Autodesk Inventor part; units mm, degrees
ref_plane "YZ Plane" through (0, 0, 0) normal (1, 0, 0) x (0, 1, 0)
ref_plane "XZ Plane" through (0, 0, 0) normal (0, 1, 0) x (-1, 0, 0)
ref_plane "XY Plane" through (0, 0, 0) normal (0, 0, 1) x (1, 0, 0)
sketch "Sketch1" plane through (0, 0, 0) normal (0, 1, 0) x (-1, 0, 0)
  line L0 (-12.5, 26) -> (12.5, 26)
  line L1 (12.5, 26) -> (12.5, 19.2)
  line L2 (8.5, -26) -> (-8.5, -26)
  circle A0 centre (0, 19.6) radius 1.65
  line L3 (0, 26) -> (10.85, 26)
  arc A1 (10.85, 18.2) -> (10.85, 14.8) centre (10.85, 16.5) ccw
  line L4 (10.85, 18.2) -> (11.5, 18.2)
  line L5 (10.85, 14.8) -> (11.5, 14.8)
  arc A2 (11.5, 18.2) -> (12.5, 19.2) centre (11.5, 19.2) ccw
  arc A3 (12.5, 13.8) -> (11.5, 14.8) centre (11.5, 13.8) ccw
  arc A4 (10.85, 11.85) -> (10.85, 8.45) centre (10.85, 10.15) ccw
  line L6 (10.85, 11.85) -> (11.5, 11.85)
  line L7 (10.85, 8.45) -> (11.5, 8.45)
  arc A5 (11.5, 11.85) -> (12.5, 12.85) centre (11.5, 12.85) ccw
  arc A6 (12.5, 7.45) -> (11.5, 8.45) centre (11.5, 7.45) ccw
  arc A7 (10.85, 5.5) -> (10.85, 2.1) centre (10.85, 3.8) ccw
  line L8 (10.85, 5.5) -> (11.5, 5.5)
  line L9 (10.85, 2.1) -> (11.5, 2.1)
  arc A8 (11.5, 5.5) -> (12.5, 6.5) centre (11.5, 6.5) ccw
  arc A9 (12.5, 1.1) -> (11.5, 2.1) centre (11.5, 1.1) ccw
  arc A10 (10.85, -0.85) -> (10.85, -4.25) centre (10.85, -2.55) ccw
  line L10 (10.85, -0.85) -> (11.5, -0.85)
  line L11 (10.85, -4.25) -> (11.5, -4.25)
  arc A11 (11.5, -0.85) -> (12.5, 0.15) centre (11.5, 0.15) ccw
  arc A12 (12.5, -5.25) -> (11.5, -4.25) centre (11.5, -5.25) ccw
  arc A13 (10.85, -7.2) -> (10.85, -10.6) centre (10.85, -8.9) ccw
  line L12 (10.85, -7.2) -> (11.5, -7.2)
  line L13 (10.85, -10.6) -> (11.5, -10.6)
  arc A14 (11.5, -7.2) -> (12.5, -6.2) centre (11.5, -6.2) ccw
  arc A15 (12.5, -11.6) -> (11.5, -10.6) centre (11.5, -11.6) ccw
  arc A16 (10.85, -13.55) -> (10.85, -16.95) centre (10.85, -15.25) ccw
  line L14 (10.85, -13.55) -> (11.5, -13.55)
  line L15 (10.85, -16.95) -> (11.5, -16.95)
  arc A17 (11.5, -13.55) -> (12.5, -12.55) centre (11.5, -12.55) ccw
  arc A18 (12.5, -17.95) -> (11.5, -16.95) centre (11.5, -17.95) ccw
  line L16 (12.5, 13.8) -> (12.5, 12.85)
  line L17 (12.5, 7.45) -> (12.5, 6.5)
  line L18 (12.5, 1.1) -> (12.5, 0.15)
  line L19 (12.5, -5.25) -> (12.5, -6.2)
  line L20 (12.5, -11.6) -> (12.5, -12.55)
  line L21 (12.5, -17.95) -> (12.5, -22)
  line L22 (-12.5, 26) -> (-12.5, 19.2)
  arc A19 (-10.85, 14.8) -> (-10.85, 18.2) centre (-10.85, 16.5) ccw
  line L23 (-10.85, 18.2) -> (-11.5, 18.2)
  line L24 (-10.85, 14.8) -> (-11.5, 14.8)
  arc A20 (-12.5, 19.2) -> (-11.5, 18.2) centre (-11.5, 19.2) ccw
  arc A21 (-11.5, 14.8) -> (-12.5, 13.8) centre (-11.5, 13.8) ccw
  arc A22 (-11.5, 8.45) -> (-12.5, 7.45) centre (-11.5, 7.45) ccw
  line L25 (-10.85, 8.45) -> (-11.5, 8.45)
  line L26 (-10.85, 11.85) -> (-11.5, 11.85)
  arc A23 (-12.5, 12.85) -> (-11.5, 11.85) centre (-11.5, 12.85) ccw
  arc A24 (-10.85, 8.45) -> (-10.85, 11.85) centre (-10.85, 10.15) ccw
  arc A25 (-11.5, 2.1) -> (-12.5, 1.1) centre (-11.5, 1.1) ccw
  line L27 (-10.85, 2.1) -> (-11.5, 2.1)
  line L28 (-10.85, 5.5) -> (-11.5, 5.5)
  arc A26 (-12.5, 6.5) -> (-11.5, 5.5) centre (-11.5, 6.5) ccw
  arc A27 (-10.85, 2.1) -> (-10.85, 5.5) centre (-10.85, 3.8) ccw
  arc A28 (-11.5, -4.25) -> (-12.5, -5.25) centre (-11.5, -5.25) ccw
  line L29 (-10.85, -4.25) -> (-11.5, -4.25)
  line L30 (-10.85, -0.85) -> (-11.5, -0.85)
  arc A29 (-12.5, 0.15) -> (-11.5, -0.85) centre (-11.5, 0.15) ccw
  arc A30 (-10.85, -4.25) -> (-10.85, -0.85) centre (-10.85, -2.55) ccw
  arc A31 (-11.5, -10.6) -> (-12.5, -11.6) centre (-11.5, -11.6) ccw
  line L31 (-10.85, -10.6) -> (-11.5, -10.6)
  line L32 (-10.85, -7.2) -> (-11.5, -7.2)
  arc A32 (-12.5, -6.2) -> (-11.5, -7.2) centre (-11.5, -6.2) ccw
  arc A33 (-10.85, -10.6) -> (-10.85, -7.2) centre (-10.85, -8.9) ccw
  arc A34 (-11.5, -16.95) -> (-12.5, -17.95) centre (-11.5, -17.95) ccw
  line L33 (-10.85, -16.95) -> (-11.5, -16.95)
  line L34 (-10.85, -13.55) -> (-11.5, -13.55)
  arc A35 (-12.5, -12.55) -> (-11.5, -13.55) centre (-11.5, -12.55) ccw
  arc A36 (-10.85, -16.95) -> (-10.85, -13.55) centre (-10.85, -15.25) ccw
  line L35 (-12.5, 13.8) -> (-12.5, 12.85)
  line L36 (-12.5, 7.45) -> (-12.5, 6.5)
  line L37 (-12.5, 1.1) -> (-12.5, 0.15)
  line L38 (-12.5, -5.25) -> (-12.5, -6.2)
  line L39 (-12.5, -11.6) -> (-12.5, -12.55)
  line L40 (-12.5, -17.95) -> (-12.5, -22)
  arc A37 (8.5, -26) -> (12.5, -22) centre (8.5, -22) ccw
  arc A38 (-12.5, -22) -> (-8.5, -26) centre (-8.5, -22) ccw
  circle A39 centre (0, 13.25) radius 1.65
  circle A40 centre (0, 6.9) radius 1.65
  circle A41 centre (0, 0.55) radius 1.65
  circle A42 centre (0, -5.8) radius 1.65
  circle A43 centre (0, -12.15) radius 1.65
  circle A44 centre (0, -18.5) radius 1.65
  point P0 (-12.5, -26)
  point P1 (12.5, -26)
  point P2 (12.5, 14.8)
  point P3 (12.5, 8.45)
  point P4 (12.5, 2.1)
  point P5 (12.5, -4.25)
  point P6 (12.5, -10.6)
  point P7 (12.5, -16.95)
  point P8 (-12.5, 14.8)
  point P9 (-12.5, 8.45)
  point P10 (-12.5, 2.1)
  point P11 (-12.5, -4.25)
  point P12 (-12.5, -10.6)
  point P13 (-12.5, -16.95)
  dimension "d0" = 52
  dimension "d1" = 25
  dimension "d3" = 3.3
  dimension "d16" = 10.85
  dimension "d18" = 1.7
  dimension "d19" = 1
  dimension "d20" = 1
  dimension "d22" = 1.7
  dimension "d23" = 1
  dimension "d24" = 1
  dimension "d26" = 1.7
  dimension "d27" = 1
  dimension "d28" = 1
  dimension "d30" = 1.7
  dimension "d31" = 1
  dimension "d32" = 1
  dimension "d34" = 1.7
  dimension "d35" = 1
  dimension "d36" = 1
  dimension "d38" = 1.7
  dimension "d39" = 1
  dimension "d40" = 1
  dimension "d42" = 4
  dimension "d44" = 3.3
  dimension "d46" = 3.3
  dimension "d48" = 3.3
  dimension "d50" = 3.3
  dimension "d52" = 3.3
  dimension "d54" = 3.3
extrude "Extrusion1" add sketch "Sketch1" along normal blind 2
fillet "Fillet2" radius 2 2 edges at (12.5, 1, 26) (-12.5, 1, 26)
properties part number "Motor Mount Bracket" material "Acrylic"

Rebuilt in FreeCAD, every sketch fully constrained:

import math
import FreeCAD as App
import Part
import Sketcher
Q = App.Units.Quantity


def edges_at(feature, points):
    """Names of the edges that pass closest to the given points."""
    edges = feature.Shape.Edges
    near = lambda p: min(range(len(edges)), key=lambda i: edges[i].distToShape(Part.Vertex(*p))[0])
    return sorted({f"Edge{near(p) + 1}" for p in points})

doc = App.newDocument("Part")
params = doc.addObject("Spreadsheet::Sheet", "Params")
for row, (alias, value) in enumerate([
    ("sketch1_radius", "1 mm"),
    ("sketch1_radius2", "4 mm"),
    ("sketch1_diameter", "3.3 mm"),
    ("sketch1_radius3", "1.7 mm"),
    ("sketch1_width", "25 mm"),
    ("pad1_length", "2 mm"),
    ("fillet_radius", "2 mm"),
], start=1):
    params.set(f"A{row}", alias)
    params.set(f"B{row}", "=" + value)
    params.setAlias(f"B{row}", alias)

body = doc.addObject("PartDesign::Body", "Body")

# Sketch on XZ plane
sketch1 = doc.addObject("Sketcher::SketchObject", "Sketch")
body.addObject(sketch1)
sketch1.AttachmentSupport = (doc.XZ_Plane, [""])
sketch1.MapMode = "FlatFace"
sketch1.addGeometry(Part.LineSegment(App.Vector(-12.5, 26, 0), App.Vector(12.5, 26, 0)), False)
sketch1.addGeometry(Part.LineSegment(App.Vector(12.5, 26, 0), App.Vector(12.5, 19.2, 0)), False)
sketch1.addGeometry(Part.ArcOfCircle(Part.Circle(App.Vector(11.5, 19.2, 0), App.Vector(0, 0, 1), 1), math.radians(-90), math.radians(0)), False)
sketch1.addGeometry(Part.LineSegment(App.Vector(11.5, 18.2, 0), App.Vector(10.85, 18.2, 0)), False)
sketch1.addGeometry(Part.ArcOfCircle(Part.Circle(App.Vector(10.85, 16.5, 0), App.Vector(0, 0, 1), 1.7), math.radians(90), math.radians(270)), False)
sketch1.addGeometry(Part.LineSegment(App.Vector(10.85, 14.8, 0), App.Vector(11.5, 14.8, 0)), False)
sketch1.addGeometry(Part.ArcOfCircle(Part.Circle(App.Vector(11.5, 13.8, 0), App.Vector(0, 0, 1), 1), math.radians(0), math.radians(90)), False)
sketch1.addGeometry(Part.LineSegment(App.Vector(12.5, 13.8, 0), App.Vector(12.5, 12.85, 0)), False)
sketch1.addGeometry(Part.ArcOfCircle(Part.Circle(App.Vector(11.5, 12.85, 0), App.Vector(0, 0, 1), 1), math.radians(-90), math.radians(0)), False)
sketch1.addGeometry(Part.LineSegment(App.Vector(11.5, 11.85, 0), App.Vector(10.85, 11.85, 0)), False)
sketch1.addGeometry(Part.ArcOfCircle(Part.Circle(App.Vector(10.85, 10.15, 0), App.Vector(0, 0, 1), 1.7), math.radians(90), math.radians(270)), False)
sketch1.addGeometry(Part.LineSegment(App.Vector(10.85, 8.45, 0), App.Vector(11.5, 8.45, 0)), False)
sketch1.addGeometry(Part.ArcOfCircle(Part.Circle(App.Vector(11.5, 7.45, 0), App.Vector(0, 0, 1), 1), math.radians(0), math.radians(90)), False)
sketch1.addGeometry(Part.LineSegment(App.Vector(12.5, 7.45, 0), App.Vector(12.5, 6.5, 0)), False)
sketch1.addGeometry(Part.ArcOfCircle(Part.Circle(App.Vector(11.5, 6.5, 0), App.Vector(0, 0, 1), 1), math.radians(-90), math.radians(0)), False)
sketch1.addGeometry(Part.LineSegment(App.Vector(11.5, 5.5, 0), App.Vector(10.85, 5.5, 0)), False)
sketch1.addGeometry(Part.ArcOfCircle(Part.Circle(App.Vector(10.85, 3.8, 0), App.Vector(0, 0, 1), 1.7), math.radians(90), math.radians(270)), False)
sketch1.addGeometry(Part.LineSegment(App.Vector(10.85, 2.1, 0), App.Vector(11.5, 2.1, 0)), False)
sketch1.addGeometry(Part.ArcOfCircle(Part.Circle(App.Vector(11.5, 1.1, 0), App.Vector(0, 0, 1), 1), math.radians(0), math.radians(90)), False)
sketch1.addGeometry(Part.LineSegment(App.Vector(12.5, 1.1, 0), App.Vector(12.5, 0.15, 0)), False)
sketch1.addGeometry(Part.ArcOfCircle(Part.Circle(App.Vector(11.5, 0.15, 0), App.Vector(0, 0, 1), 1), math.radians(-90), math.radians(0)), False)
sketch1.addGeometry(Part.LineSegment(App.Vector(11.5, -0.85, 0), App.Vector(10.85, -0.85, 0)), False)
sketch1.addGeometry(Part.ArcOfCircle(Part.Circle(App.Vector(10.85, -2.55, 0), App.Vector(0, 0, 1), 1.7), math.radians(90), math.radians(270)), False)
sketch1.addGeometry(Part.LineSegment(App.Vector(10.85, -4.25, 0), App.Vector(11.5, -4.25, 0)), False)
sketch1.addGeometry(Part.ArcOfCircle(Part.Circle(App.Vector(11.5, -5.25, 0), App.Vector(0, 0, 1), 1), math.radians(0), math.radians(90)), False)
sketch1.addGeometry(Part.LineSegment(App.Vector(12.5, -5.25, 0), App.Vector(12.5, -6.2, 0)), False)
sketch1.addGeometry(Part.ArcOfCircle(Part.Circle(App.Vector(11.5, -6.2, 0), App.Vector(0, 0, 1), 1), math.radians(-90), math.radians(0)), False)
sketch1.addGeometry(Part.LineSegment(App.Vector(11.5, -7.2, 0), App.Vector(10.85, -7.2, 0)), False)
sketch1.addGeometry(Part.ArcOfCircle(Part.Circle(App.Vector(10.85, -8.9, 0), App.Vector(0, 0, 1), 1.7), math.radians(90), math.radians(270)), False)
sketch1.addGeometry(Part.LineSegment(App.Vector(10.85, -10.6, 0), App.Vector(11.5, -10.6, 0)), False)
sketch1.addGeometry(Part.ArcOfCircle(Part.Circle(App.Vector(11.5, -11.6, 0), App.Vector(0, 0, 1), 1), math.radians(0), math.radians(90)), False)
sketch1.addGeometry(Part.LineSegment(App.Vector(12.5, -11.6, 0), App.Vector(12.5, -12.55, 0)), False)
sketch1.addGeometry(Part.ArcOfCircle(Part.Circle(App.Vector(11.5, -12.55, 0), App.Vector(0, 0, 1), 1), math.radians(-90), math.radians(0)), False)
sketch1.addGeometry(Part.LineSegment(App.Vector(11.5, -13.55, 0), App.Vector(10.85, -13.55, 0)), False)
sketch1.addGeometry(Part.ArcOfCircle(Part.Circle(App.Vector(10.85, -15.25, 0), App.Vector(0, 0, 1), 1.7), math.radians(90), math.radians(270)), False)
sketch1.addGeometry(Part.LineSegment(App.Vector(10.85, -16.95, 0), App.Vector(11.5, -16.95, 0)), False)
sketch1.addGeometry(Part.ArcOfCircle(Part.Circle(App.Vector(11.5, -17.95, 0), App.Vector(0, 0, 1), 1), math.radians(0), math.radians(90)), False)
sketch1.addGeometry(Part.LineSegment(App.Vector(12.5, -17.95, 0), App.Vector(12.5, -22, 0)), False)
sketch1.addGeometry(Part.ArcOfCircle(Part.Circle(App.Vector(8.5, -22, 0), App.Vector(0, 0, 1), 4), math.radians(-90), math.radians(0)), False)
sketch1.addGeometry(Part.LineSegment(App.Vector(8.5, -26, 0), App.Vector(-8.5, -26, 0)), False)
sketch1.addGeometry(Part.ArcOfCircle(Part.Circle(App.Vector(-8.5, -22, 0), App.Vector(0, 0, 1), 4), math.radians(180), math.radians(270)), False)
sketch1.addGeometry(Part.LineSegment(App.Vector(-12.5, -22, 0), App.Vector(-12.5, -17.95, 0)), False)
sketch1.addGeometry(Part.ArcOfCircle(Part.Circle(App.Vector(-11.5, -17.95, 0), App.Vector(0, 0, 1), 1), math.radians(90), math.radians(180)), False)
sketch1.addGeometry(Part.LineSegment(App.Vector(-11.5, -16.95, 0), App.Vector(-10.85, -16.95, 0)), False)
sketch1.addGeometry(Part.ArcOfCircle(Part.Circle(App.Vector(-10.85, -15.25, 0), App.Vector(0, 0, 1), 1.7), math.radians(-90), math.radians(90)), False)
sketch1.addGeometry(Part.LineSegment(App.Vector(-10.85, -13.55, 0), App.Vector(-11.5, -13.55, 0)), False)
sketch1.addGeometry(Part.ArcOfCircle(Part.Circle(App.Vector(-11.5, -12.55, 0), App.Vector(0, 0, 1), 1), math.radians(180), math.radians(270)), False)
sketch1.addGeometry(Part.LineSegment(App.Vector(-12.5, -12.55, 0), App.Vector(-12.5, -11.6, 0)), False)
sketch1.addGeometry(Part.ArcOfCircle(Part.Circle(App.Vector(-11.5, -11.6, 0), App.Vector(0, 0, 1), 1), math.radians(90), math.radians(180)), False)
sketch1.addGeometry(Part.LineSegment(App.Vector(-11.5, -10.6, 0), App.Vector(-10.85, -10.6, 0)), False)
sketch1.addGeometry(Part.ArcOfCircle(Part.Circle(App.Vector(-10.85, -8.9, 0), App.Vector(0, 0, 1), 1.7), math.radians(-90), math.radians(90)), False)
sketch1.addGeometry(Part.LineSegment(App.Vector(-10.85, -7.2, 0), App.Vector(-11.5, -7.2, 0)), False)
sketch1.addGeometry(Part.ArcOfCircle(Part.Circle(App.Vector(-11.5, -6.2, 0), App.Vector(0, 0, 1), 1), math.radians(180), math.radians(270)), False)
sketch1.addGeometry(Part.LineSegment(App.Vector(-12.5, -6.2, 0), App.Vector(-12.5, -5.25, 0)), False)
sketch1.addGeometry(Part.ArcOfCircle(Part.Circle(App.Vector(-11.5, -5.25, 0), App.Vector(0, 0, 1), 1), math.radians(90), math.radians(180)), False)
sketch1.addGeometry(Part.LineSegment(App.Vector(-11.5, -4.25, 0), App.Vector(-10.85, -4.25, 0)), False)
sketch1.addGeometry(Part.ArcOfCircle(Part.Circle(App.Vector(-10.85, -2.55, 0), App.Vector(0, 0, 1), 1.7), math.radians(-90), math.radians(90)), False)
sketch1.addGeometry(Part.LineSegment(App.Vector(-10.85, -0.85, 0), App.Vector(-11.5, -0.85, 0)), False)
sketch1.addGeometry(Part.ArcOfCircle(Part.Circle(App.Vector(-11.5, 0.15, 0), App.Vector(0, 0, 1), 1), math.radians(180), math.radians(270)), False)
sketch1.addGeometry(Part.LineSegment(App.Vector(-12.5, 0.15, 0), App.Vector(-12.5, 1.1, 0)), False)
sketch1.addGeometry(Part.ArcOfCircle(Part.Circle(App.Vector(-11.5, 1.1, 0), App.Vector(0, 0, 1), 1), math.radians(90), math.radians(180)), False)
sketch1.addGeometry(Part.LineSegment(App.Vector(-11.5, 2.1, 0), App.Vector(-10.85, 2.1, 0)), False)
sketch1.addGeometry(Part.ArcOfCircle(Part.Circle(App.Vector(-10.85, 3.8, 0), App.Vector(0, 0, 1), 1.7), math.radians(-90), math.radians(90)), False)
sketch1.addGeometry(Part.LineSegment(App.Vector(-10.85, 5.5, 0), App.Vector(-11.5, 5.5, 0)), False)
sketch1.addGeometry(Part.ArcOfCircle(Part.Circle(App.Vector(-11.5, 6.5, 0), App.Vector(0, 0, 1), 1), math.radians(180), math.radians(270)), False)
sketch1.addGeometry(Part.LineSegment(App.Vector(-12.5, 6.5, 0), App.Vector(-12.5, 7.45, 0)), False)
sketch1.addGeometry(Part.ArcOfCircle(Part.Circle(App.Vector(-11.5, 7.45, 0), App.Vector(0, 0, 1), 1), math.radians(90), math.radians(180)), False)
sketch1.addGeometry(Part.LineSegment(App.Vector(-11.5, 8.45, 0), App.Vector(-10.85, 8.45, 0)), False)
sketch1.addGeometry(Part.ArcOfCircle(Part.Circle(App.Vector(-10.85, 10.15, 0), App.Vector(0, 0, 1), 1.7), math.radians(-90), math.radians(90)), False)
sketch1.addGeometry(Part.LineSegment(App.Vector(-10.85, 11.85, 0), App.Vector(-11.5, 11.85, 0)), False)
sketch1.addGeometry(Part.ArcOfCircle(Part.Circle(App.Vector(-11.5, 12.85, 0), App.Vector(0, 0, 1), 1), math.radians(180), math.radians(270)), False)
sketch1.addGeometry(Part.LineSegment(App.Vector(-12.5, 12.85, 0), App.Vector(-12.5, 13.8, 0)), False)
sketch1.addGeometry(Part.ArcOfCircle(Part.Circle(App.Vector(-11.5, 13.8, 0), App.Vector(0, 0, 1), 1), math.radians(90), math.radians(180)), False)
sketch1.addGeometry(Part.LineSegment(App.Vector(-11.5, 14.8, 0), App.Vector(-10.85, 14.8, 0)), False)
sketch1.addGeometry(Part.ArcOfCircle(Part.Circle(App.Vector(-10.85, 16.5, 0), App.Vector(0, 0, 1), 1.7), math.radians(-90), math.radians(90)), False)
sketch1.addGeometry(Part.LineSegment(App.Vector(-10.85, 18.2, 0), App.Vector(-11.5, 18.2, 0)), False)
sketch1.addGeometry(Part.ArcOfCircle(Part.Circle(App.Vector(-11.5, 19.2, 0), App.Vector(0, 0, 1), 1), math.radians(180), math.radians(270)), False)
sketch1.addGeometry(Part.LineSegment(App.Vector(-12.5, 19.2, 0), App.Vector(-12.5, 26, 0)), False)
sketch1.addGeometry(Part.Circle(App.Vector(0, -18.5, 0), App.Vector(0, 0, 1), 1.65), False)
sketch1.addGeometry(Part.Circle(App.Vector(0, -12.15, 0), App.Vector(0, 0, 1), 1.65), False)
sketch1.addGeometry(Part.Circle(App.Vector(0, -5.8, 0), App.Vector(0, 0, 1), 1.65), False)
sketch1.addGeometry(Part.Circle(App.Vector(0, 0.55, 0), App.Vector(0, 0, 1), 1.65), False)
sketch1.addGeometry(Part.Circle(App.Vector(0, 6.9, 0), App.Vector(0, 0, 1), 1.65), False)
sketch1.addGeometry(Part.Circle(App.Vector(0, 13.25, 0), App.Vector(0, 0, 1), 1.65), False)
sketch1.addGeometry(Part.Circle(App.Vector(0, 19.6, 0), App.Vector(0, 0, 1), 1.65), False)
sketch1.addConstraint(Sketcher.Constraint("Coincident", 0, 2, 1, 1))
sketch1.addConstraint(Sketcher.Constraint("Tangent", 1, 2, 2, 2))
sketch1.addConstraint(Sketcher.Constraint("Tangent", 2, 1, 3, 1))
sketch1.addConstraint(Sketcher.Constraint("Tangent", 3, 2, 4, 1))
sketch1.addConstraint(Sketcher.Constraint("Tangent", 4, 2, 5, 1))
sketch1.addConstraint(Sketcher.Constraint("Tangent", 5, 2, 6, 2))
sketch1.addConstraint(Sketcher.Constraint("Tangent", 6, 1, 7, 1))
sketch1.addConstraint(Sketcher.Constraint("Tangent", 7, 2, 8, 2))
sketch1.addConstraint(Sketcher.Constraint("Tangent", 8, 1, 9, 1))
sketch1.addConstraint(Sketcher.Constraint("Tangent", 9, 2, 10, 1))
sketch1.addConstraint(Sketcher.Constraint("Tangent", 10, 2, 11, 1))
sketch1.addConstraint(Sketcher.Constraint("Tangent", 11, 2, 12, 2))
sketch1.addConstraint(Sketcher.Constraint("Tangent", 12, 1, 13, 1))
sketch1.addConstraint(Sketcher.Constraint("Tangent", 13, 2, 14, 2))
sketch1.addConstraint(Sketcher.Constraint("Tangent", 14, 1, 15, 1))
sketch1.addConstraint(Sketcher.Constraint("Tangent", 15, 2, 16, 1))
sketch1.addConstraint(Sketcher.Constraint("Tangent", 16, 2, 17, 1))
sketch1.addConstraint(Sketcher.Constraint("Tangent", 17, 2, 18, 2))
sketch1.addConstraint(Sketcher.Constraint("Tangent", 18, 1, 19, 1))
sketch1.addConstraint(Sketcher.Constraint("Tangent", 19, 2, 20, 2))
sketch1.addConstraint(Sketcher.Constraint("Tangent", 20, 1, 21, 1))
sketch1.addConstraint(Sketcher.Constraint("Tangent", 21, 2, 22, 1))
sketch1.addConstraint(Sketcher.Constraint("Tangent", 22, 2, 23, 1))
sketch1.addConstraint(Sketcher.Constraint("Tangent", 23, 2, 24, 2))
sketch1.addConstraint(Sketcher.Constraint("Tangent", 24, 1, 25, 1))
sketch1.addConstraint(Sketcher.Constraint("Tangent", 25, 2, 26, 2))
sketch1.addConstraint(Sketcher.Constraint("Tangent", 26, 1, 27, 1))
sketch1.addConstraint(Sketcher.Constraint("Tangent", 27, 2, 28, 1))
sketch1.addConstraint(Sketcher.Constraint("Tangent", 28, 2, 29, 1))
sketch1.addConstraint(Sketcher.Constraint("Tangent", 29, 2, 30, 2))
sketch1.addConstraint(Sketcher.Constraint("Tangent", 30, 1, 31, 1))
sketch1.addConstraint(Sketcher.Constraint("Tangent", 31, 2, 32, 2))
sketch1.addConstraint(Sketcher.Constraint("Tangent", 32, 1, 33, 1))
sketch1.addConstraint(Sketcher.Constraint("Tangent", 33, 2, 34, 1))
sketch1.addConstraint(Sketcher.Constraint("Tangent", 34, 2, 35, 1))
sketch1.addConstraint(Sketcher.Constraint("Tangent", 35, 2, 36, 2))
sketch1.addConstraint(Sketcher.Constraint("Tangent", 36, 1, 37, 1))
sketch1.addConstraint(Sketcher.Constraint("Tangent", 37, 2, 38, 2))
sketch1.addConstraint(Sketcher.Constraint("Tangent", 38, 1, 39, 1))
sketch1.addConstraint(Sketcher.Constraint("Tangent", 39, 2, 40, 2))
sketch1.addConstraint(Sketcher.Constraint("Tangent", 40, 1, 41, 1))
sketch1.addConstraint(Sketcher.Constraint("Tangent", 41, 2, 42, 2))
sketch1.addConstraint(Sketcher.Constraint("Tangent", 42, 1, 43, 1))
sketch1.addConstraint(Sketcher.Constraint("Tangent", 43, 2, 44, 1))
sketch1.addConstraint(Sketcher.Constraint("Tangent", 44, 2, 45, 1))
sketch1.addConstraint(Sketcher.Constraint("Tangent", 45, 2, 46, 2))
sketch1.addConstraint(Sketcher.Constraint("Tangent", 46, 1, 47, 1))
sketch1.addConstraint(Sketcher.Constraint("Tangent", 47, 2, 48, 2))
sketch1.addConstraint(Sketcher.Constraint("Tangent", 48, 1, 49, 1))
sketch1.addConstraint(Sketcher.Constraint("Tangent", 49, 2, 50, 1))
sketch1.addConstraint(Sketcher.Constraint("Tangent", 50, 2, 51, 1))
sketch1.addConstraint(Sketcher.Constraint("Tangent", 51, 2, 52, 2))
sketch1.addConstraint(Sketcher.Constraint("Tangent", 52, 1, 53, 1))
sketch1.addConstraint(Sketcher.Constraint("Tangent", 53, 2, 54, 2))
sketch1.addConstraint(Sketcher.Constraint("Tangent", 54, 1, 55, 1))
sketch1.addConstraint(Sketcher.Constraint("Tangent", 55, 2, 56, 1))
sketch1.addConstraint(Sketcher.Constraint("Tangent", 56, 2, 57, 1))
sketch1.addConstraint(Sketcher.Constraint("Tangent", 57, 2, 58, 2))
sketch1.addConstraint(Sketcher.Constraint("Tangent", 58, 1, 59, 1))
sketch1.addConstraint(Sketcher.Constraint("Tangent", 59, 2, 60, 2))
sketch1.addConstraint(Sketcher.Constraint("Tangent", 60, 1, 61, 1))
sketch1.addConstraint(Sketcher.Constraint("Tangent", 61, 2, 62, 1))
sketch1.addConstraint(Sketcher.Constraint("Tangent", 62, 2, 63, 1))
sketch1.addConstraint(Sketcher.Constraint("Tangent", 63, 2, 64, 2))
sketch1.addConstraint(Sketcher.Constraint("Tangent", 64, 1, 65, 1))
sketch1.addConstraint(Sketcher.Constraint("Tangent", 65, 2, 66, 2))
sketch1.addConstraint(Sketcher.Constraint("Tangent", 66, 1, 67, 1))
sketch1.addConstraint(Sketcher.Constraint("Tangent", 67, 2, 68, 1))
sketch1.addConstraint(Sketcher.Constraint("Tangent", 68, 2, 69, 1))
sketch1.addConstraint(Sketcher.Constraint("Tangent", 69, 2, 70, 2))
sketch1.addConstraint(Sketcher.Constraint("Tangent", 70, 1, 71, 1))
sketch1.addConstraint(Sketcher.Constraint("Tangent", 71, 2, 72, 2))
sketch1.addConstraint(Sketcher.Constraint("Tangent", 72, 1, 73, 1))
sketch1.addConstraint(Sketcher.Constraint("Tangent", 73, 2, 74, 1))
sketch1.addConstraint(Sketcher.Constraint("Tangent", 74, 2, 75, 1))
sketch1.addConstraint(Sketcher.Constraint("Tangent", 75, 2, 76, 2))
sketch1.addConstraint(Sketcher.Constraint("Tangent", 76, 1, 77, 1))
sketch1.addConstraint(Sketcher.Constraint("Coincident", 77, 2, 0, 1))
sketch1.addConstraint(Sketcher.Constraint("Horizontal", 0))
sketch1.addConstraint(Sketcher.Constraint("Vertical", 1))
sketch1.addConstraint(Sketcher.Constraint("Horizontal", 3))
sketch1.addConstraint(Sketcher.Constraint("Horizontal", 5))
sketch1.addConstraint(Sketcher.Constraint("Vertical", 7))
sketch1.addConstraint(Sketcher.Constraint("Horizontal", 9))
sketch1.addConstraint(Sketcher.Constraint("Horizontal", 11))
sketch1.addConstraint(Sketcher.Constraint("Vertical", 13))
sketch1.addConstraint(Sketcher.Constraint("Horizontal", 15))
sketch1.addConstraint(Sketcher.Constraint("Horizontal", 17))
sketch1.addConstraint(Sketcher.Constraint("Vertical", 19))
sketch1.addConstraint(Sketcher.Constraint("Horizontal", 21))
sketch1.addConstraint(Sketcher.Constraint("Horizontal", 23))
sketch1.addConstraint(Sketcher.Constraint("Vertical", 25))
sketch1.addConstraint(Sketcher.Constraint("Horizontal", 27))
sketch1.addConstraint(Sketcher.Constraint("Horizontal", 29))
sketch1.addConstraint(Sketcher.Constraint("Vertical", 31))
sketch1.addConstraint(Sketcher.Constraint("Horizontal", 33))
sketch1.addConstraint(Sketcher.Constraint("Horizontal", 35))
sketch1.addConstraint(Sketcher.Constraint("Vertical", 37))
sketch1.addConstraint(Sketcher.Constraint("Horizontal", 39))
sketch1.addConstraint(Sketcher.Constraint("Vertical", 41))
sketch1.addConstraint(Sketcher.Constraint("Horizontal", 43))
sketch1.addConstraint(Sketcher.Constraint("Horizontal", 45))
sketch1.addConstraint(Sketcher.Constraint("Vertical", 47))
sketch1.addConstraint(Sketcher.Constraint("Horizontal", 49))
sketch1.addConstraint(Sketcher.Constraint("Horizontal", 51))
sketch1.addConstraint(Sketcher.Constraint("Vertical", 53))
sketch1.addConstraint(Sketcher.Constraint("Horizontal", 55))
sketch1.addConstraint(Sketcher.Constraint("Horizontal", 57))
sketch1.addConstraint(Sketcher.Constraint("Vertical", 59))
sketch1.addConstraint(Sketcher.Constraint("Horizontal", 61))
sketch1.addConstraint(Sketcher.Constraint("Horizontal", 63))
sketch1.addConstraint(Sketcher.Constraint("Vertical", 65))
sketch1.addConstraint(Sketcher.Constraint("Horizontal", 67))
sketch1.addConstraint(Sketcher.Constraint("Horizontal", 69))
sketch1.addConstraint(Sketcher.Constraint("Vertical", 71))
sketch1.addConstraint(Sketcher.Constraint("Horizontal", 73))
sketch1.addConstraint(Sketcher.Constraint("Horizontal", 75))
sketch1.addConstraint(Sketcher.Constraint("Vertical", 77))
sketch1.addConstraint(Sketcher.Constraint("Equal", 2, 6))
sketch1.addConstraint(Sketcher.Constraint("Equal", 6, 8))
sketch1.addConstraint(Sketcher.Constraint("Equal", 4, 10))
sketch1.addConstraint(Sketcher.Constraint("Equal", 8, 12))
sketch1.addConstraint(Sketcher.Constraint("Equal", 12, 14))
sketch1.addConstraint(Sketcher.Constraint("Equal", 10, 16))
sketch1.addConstraint(Sketcher.Constraint("Equal", 14, 18))
sketch1.addConstraint(Sketcher.Constraint("Equal", 18, 20))
sketch1.addConstraint(Sketcher.Constraint("Equal", 16, 22))
sketch1.addConstraint(Sketcher.Constraint("Equal", 20, 24))
sketch1.addConstraint(Sketcher.Constraint("Equal", 24, 26))
sketch1.addConstraint(Sketcher.Constraint("Equal", 22, 28))
sketch1.addConstraint(Sketcher.Constraint("Equal", 26, 30))
sketch1.addConstraint(Sketcher.Constraint("Equal", 30, 32))
sketch1.addConstraint(Sketcher.Constraint("Equal", 28, 34))
sketch1.addConstraint(Sketcher.Constraint("Equal", 32, 36))
sketch1.addConstraint(Sketcher.Constraint("Equal", 38, 40))
sketch1.addConstraint(Sketcher.Constraint("Equal", 36, 42))
sketch1.addConstraint(Sketcher.Constraint("Equal", 34, 44))
sketch1.addConstraint(Sketcher.Constraint("Equal", 42, 46))
sketch1.addConstraint(Sketcher.Constraint("Equal", 46, 48))
sketch1.addConstraint(Sketcher.Constraint("Equal", 44, 50))
sketch1.addConstraint(Sketcher.Constraint("Equal", 48, 52))
sketch1.addConstraint(Sketcher.Constraint("Equal", 52, 54))
sketch1.addConstraint(Sketcher.Constraint("Equal", 50, 56))
sketch1.addConstraint(Sketcher.Constraint("Equal", 54, 58))
sketch1.addConstraint(Sketcher.Constraint("Equal", 58, 60))
sketch1.addConstraint(Sketcher.Constraint("Equal", 56, 62))
sketch1.addConstraint(Sketcher.Constraint("Equal", 60, 64))
sketch1.addConstraint(Sketcher.Constraint("Equal", 64, 66))
sketch1.addConstraint(Sketcher.Constraint("Equal", 62, 68))
sketch1.addConstraint(Sketcher.Constraint("Equal", 66, 70))
sketch1.addConstraint(Sketcher.Constraint("Equal", 70, 72))
sketch1.addConstraint(Sketcher.Constraint("Equal", 68, 74))
sketch1.addConstraint(Sketcher.Constraint("Equal", 72, 76))
sketch1.addConstraint(Sketcher.Constraint("Equal", 78, 79))
sketch1.addConstraint(Sketcher.Constraint("Equal", 79, 80))
sketch1.addConstraint(Sketcher.Constraint("Equal", 80, 81))
sketch1.addConstraint(Sketcher.Constraint("Equal", 81, 82))
sketch1.addConstraint(Sketcher.Constraint("Equal", 82, 83))
sketch1.addConstraint(Sketcher.Constraint("Equal", 83, 84))
sketch1.addConstraint(Sketcher.Constraint("Symmetric", 36, 3, 42, 3, -2))
sketch1.addConstraint(Sketcher.Constraint("Symmetric", 30, 3, 48, 3, -2))
sketch1.addConstraint(Sketcher.Constraint("Symmetric", 24, 3, 54, 3, -2))
sketch1.addConstraint(Sketcher.Constraint("Symmetric", 18, 3, 60, 3, -2))
sketch1.addConstraint(Sketcher.Constraint("Symmetric", 12, 3, 66, 3, -2))
sketch1.addConstraint(Sketcher.Constraint("Symmetric", 6, 3, 72, 3, -2))
sketch1.addConstraint(Sketcher.Constraint("PointOnObject", 78, 3, -2))
sketch1.addConstraint(Sketcher.Constraint("PointOnObject", 79, 3, -2))
sketch1.addConstraint(Sketcher.Constraint("PointOnObject", 80, 3, -2))
sketch1.addConstraint(Sketcher.Constraint("PointOnObject", 81, 3, -2))
sketch1.addConstraint(Sketcher.Constraint("PointOnObject", 82, 3, -2))
sketch1.addConstraint(Sketcher.Constraint("PointOnObject", 83, 3, -2))
sketch1.addConstraint(Sketcher.Constraint("PointOnObject", 84, 3, -2))
sketch1.addConstraint(Sketcher.Constraint("Vertical", 2, 3, 6, 3))
sketch1.addConstraint(Sketcher.Constraint("Vertical", 4, 3, 10, 3))
sketch1.addConstraint(Sketcher.Constraint("Vertical", 8, 3, 12, 3))
sketch1.addConstraint(Sketcher.Constraint("Vertical", 10, 3, 16, 3))
sketch1.addConstraint(Sketcher.Constraint("Vertical", 14, 3, 18, 3))
sketch1.addConstraint(Sketcher.Constraint("Vertical", 16, 3, 22, 3))
sketch1.addConstraint(Sketcher.Constraint("Vertical", 20, 3, 24, 3))
sketch1.addConstraint(Sketcher.Constraint("Vertical", 22, 3, 28, 3))
sketch1.addConstraint(Sketcher.Constraint("Vertical", 26, 3, 30, 3))
sketch1.addConstraint(Sketcher.Constraint("Vertical", 28, 3, 34, 3))
sketch1.addConstraint(Sketcher.Constraint("Vertical", 32, 3, 36, 3))
sketch1.addConstraint(Sketcher.Constraint("Vertical", 44, 3, 50, 3))
sketch1.addConstraint(Sketcher.Constraint("Vertical", 50, 3, 56, 3))
sketch1.addConstraint(Sketcher.Constraint("Vertical", 56, 3, 62, 3))
sketch1.addConstraint(Sketcher.Constraint("Vertical", 62, 3, 68, 3))
sketch1.addConstraint(Sketcher.Constraint("Vertical", 68, 3, 74, 3))
sketch1.addConstraint(Sketcher.Constraint("Vertical", 72, 3, 76, 3))
sketch1.addConstraint(Sketcher.Constraint("Equal", 35, 43))
sketch1.addConstraint(Sketcher.Constraint("Equal", 7, 13))
sketch1.addConstraint(Sketcher.Constraint("Equal", 13, 19))
sketch1.addConstraint(Sketcher.Constraint("Equal", 19, 25))
sketch1.addConstraint(Sketcher.Constraint("Equal", 25, 31))
sketch1.addConstraint(Sketcher.Constraint("Radius", 2, Q("1 mm")))
sketch1.addConstraint(Sketcher.Constraint("Radius", 38, Q("4 mm")))
sketch1.addConstraint(Sketcher.Constraint("Diameter", 78, Q("3.3 mm")))
sketch1.addConstraint(Sketcher.Constraint("Radius", 4, Q("1.7 mm")))
sketch1.addConstraint(Sketcher.Constraint("DistanceX", 0, 1, 0, 2, Q("25 mm")))
sketch1.addConstraint(Sketcher.Constraint("DistanceX", -1, 1, 4, 3, Q("10.85 mm")))
sketch1.addConstraint(Sketcher.Constraint("DistanceY", 1, 2, 1, 1, Q("6.8 mm")))
sketch1.addConstraint(Sketcher.Constraint("DistanceY", 38, 3, -1, 1, Q("22 mm")))
sketch1.addConstraint(Sketcher.Constraint("DistanceY", -1, 1, 0, 2, Q("26 mm")))
sketch1.addConstraint(Sketcher.Constraint("DistanceY", 7, 2, 7, 1, Q("0.95 mm")))
sketch1.addConstraint(Sketcher.Constraint("DistanceY", 78, 3, -1, 1, Q("18.5 mm")))
sketch1.addConstraint(Sketcher.Constraint("DistanceY", 80, 3, -1, 1, Q("5.8 mm")))
sketch1.addConstraint(Sketcher.Constraint("DistanceY", -1, 1, 82, 3, Q("6.9 mm")))
sketch1.addConstraint(Sketcher.Constraint("DistanceY", -1, 1, 84, 3, Q("19.6 mm")))
sketch1.addConstraint(Sketcher.Constraint("DistanceY", 79, 3, -1, 1, Q("12.15 mm")))
sketch1.addConstraint(Sketcher.Constraint("DistanceY", -1, 1, 81, 3, Q("0.55 mm")))
sketch1.addConstraint(Sketcher.Constraint("DistanceY", -1, 1, 83, 3, Q("13.25 mm")))
sketch1.setExpression("Constraints[194]", "Params.sketch1_radius")
sketch1.setExpression("Constraints[195]", "Params.sketch1_radius2")
sketch1.setExpression("Constraints[196]", "Params.sketch1_diameter")
sketch1.setExpression("Constraints[197]", "Params.sketch1_radius3")
sketch1.setExpression("Constraints[198]", "Params.sketch1_width")
pad1 = doc.addObject("PartDesign::Pad", "Pad")
body.addObject(pad1)
pad1.Profile = sketch1
pad1.setExpression("Length", "Params.pad1_length")
pad1.Reversed = True
doc.recompute()

fillet = doc.addObject("PartDesign::Fillet", "Fillet")
body.addObject(fillet)
fillet.Base = (pad1, edges_at(pad1, [(12.5, 1, 26), (-12.5, 1, 26)]))
fillet.setExpression("Radius", "Params.fillet_radius")

doc.recompute()
